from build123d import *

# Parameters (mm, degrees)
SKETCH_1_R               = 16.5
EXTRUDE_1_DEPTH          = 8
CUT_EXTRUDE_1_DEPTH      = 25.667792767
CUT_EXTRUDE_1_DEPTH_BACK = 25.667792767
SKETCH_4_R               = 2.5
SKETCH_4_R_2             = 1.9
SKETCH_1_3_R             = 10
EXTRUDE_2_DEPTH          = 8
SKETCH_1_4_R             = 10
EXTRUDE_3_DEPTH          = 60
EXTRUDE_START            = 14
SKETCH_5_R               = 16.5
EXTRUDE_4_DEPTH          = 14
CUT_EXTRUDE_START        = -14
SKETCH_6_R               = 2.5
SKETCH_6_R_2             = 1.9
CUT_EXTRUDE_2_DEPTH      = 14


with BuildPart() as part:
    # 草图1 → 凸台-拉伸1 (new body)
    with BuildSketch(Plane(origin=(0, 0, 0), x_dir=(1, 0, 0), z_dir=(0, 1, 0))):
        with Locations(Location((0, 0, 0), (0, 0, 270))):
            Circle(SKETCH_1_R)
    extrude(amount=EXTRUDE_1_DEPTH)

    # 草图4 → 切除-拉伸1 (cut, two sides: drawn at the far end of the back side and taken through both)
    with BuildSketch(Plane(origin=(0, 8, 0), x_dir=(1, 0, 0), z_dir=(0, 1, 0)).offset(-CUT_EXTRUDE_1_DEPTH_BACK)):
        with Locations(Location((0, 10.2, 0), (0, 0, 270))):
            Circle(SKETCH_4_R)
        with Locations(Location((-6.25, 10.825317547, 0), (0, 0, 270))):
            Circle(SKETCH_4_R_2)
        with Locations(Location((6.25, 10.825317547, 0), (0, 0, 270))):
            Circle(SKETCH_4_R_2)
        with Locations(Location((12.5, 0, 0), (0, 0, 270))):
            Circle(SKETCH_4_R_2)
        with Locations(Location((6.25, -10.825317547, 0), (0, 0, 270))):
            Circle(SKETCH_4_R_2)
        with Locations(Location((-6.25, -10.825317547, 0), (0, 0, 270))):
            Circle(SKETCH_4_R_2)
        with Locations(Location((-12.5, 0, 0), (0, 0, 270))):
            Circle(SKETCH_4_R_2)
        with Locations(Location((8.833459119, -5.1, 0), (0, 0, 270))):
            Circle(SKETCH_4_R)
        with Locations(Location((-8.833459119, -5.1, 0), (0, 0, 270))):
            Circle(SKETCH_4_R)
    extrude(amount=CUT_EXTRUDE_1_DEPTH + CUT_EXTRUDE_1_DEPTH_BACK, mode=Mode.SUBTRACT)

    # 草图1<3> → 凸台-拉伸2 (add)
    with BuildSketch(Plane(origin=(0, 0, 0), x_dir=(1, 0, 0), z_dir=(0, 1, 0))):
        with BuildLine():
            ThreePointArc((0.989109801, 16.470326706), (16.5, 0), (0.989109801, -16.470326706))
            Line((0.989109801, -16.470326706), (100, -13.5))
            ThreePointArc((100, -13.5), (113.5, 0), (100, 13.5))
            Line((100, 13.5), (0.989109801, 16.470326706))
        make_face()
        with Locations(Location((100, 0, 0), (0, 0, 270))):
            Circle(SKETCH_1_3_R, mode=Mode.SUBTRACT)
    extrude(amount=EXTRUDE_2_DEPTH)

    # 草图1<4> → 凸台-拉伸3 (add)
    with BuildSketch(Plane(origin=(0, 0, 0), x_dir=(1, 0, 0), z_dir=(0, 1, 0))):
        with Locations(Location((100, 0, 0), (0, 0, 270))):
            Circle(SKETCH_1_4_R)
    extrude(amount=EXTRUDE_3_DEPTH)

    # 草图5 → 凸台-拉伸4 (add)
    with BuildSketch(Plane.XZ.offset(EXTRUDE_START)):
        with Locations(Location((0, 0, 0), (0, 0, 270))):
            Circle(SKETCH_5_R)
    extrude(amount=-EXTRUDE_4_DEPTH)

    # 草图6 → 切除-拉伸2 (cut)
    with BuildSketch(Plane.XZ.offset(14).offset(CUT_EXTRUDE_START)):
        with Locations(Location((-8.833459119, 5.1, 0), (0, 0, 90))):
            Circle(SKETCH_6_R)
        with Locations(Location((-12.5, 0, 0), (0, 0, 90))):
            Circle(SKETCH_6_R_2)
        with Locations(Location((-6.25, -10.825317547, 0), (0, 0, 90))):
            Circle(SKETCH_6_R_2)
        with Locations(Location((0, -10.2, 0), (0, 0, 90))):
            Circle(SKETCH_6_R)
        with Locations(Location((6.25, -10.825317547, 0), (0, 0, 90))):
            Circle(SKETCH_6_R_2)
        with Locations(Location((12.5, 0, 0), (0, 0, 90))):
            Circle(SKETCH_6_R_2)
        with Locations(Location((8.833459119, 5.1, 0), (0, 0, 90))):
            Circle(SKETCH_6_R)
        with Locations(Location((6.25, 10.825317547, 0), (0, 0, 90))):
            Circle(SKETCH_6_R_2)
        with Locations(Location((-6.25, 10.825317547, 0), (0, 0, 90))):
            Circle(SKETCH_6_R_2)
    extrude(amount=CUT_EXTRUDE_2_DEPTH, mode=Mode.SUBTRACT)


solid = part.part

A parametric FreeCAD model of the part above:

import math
import FreeCAD as App
import Part
import Sketcher
Q = App.Units.Quantity

doc = App.newDocument("Part")
body = doc.addObject("PartDesign::Body", "Body")

sketch1 = body.newObject("Sketcher::SketchObject", "Sketch")
sketch1.AttachmentSupport = (doc.getObject("XZ_Plane"), [""])
sketch1.MapMode = "FlatFace"
sketch1.addGeometry(Part.Circle(App.Vector(0, 0, 0), App.Vector(0, 0, 1), 16.5), False)
sketch1.addConstraint([
    Sketcher.Constraint("Coincident", 0, 3, -1, 1),
    Sketcher.Constraint("Diameter", 0, Q("33 mm")),
])
pad1 = body.newObject("PartDesign::Pad", "Pad")
pad1.Profile = sketch1
pad1.Length = 8
pad1.Reversed = True

sketch2 = body.newObject("Sketcher::SketchObject", "Sketch001")
sketch2.AttachmentSupport = (doc.getObject("XZ_Plane"), [""])
sketch2.MapMode = "FlatFace"
sketch2.AttachmentOffset = App.Placement(App.Vector(0, 0, -8), App.Rotation())
sketch2.addGeometry([
    Part.Circle(App.Vector(0, -10.2, 0), App.Vector(0, 0, 1), 2.5),
    Part.Circle(App.Vector(-6.25, -10.825318, 0), App.Vector(0, 0, 1), 1.9),
    Part.Circle(App.Vector(6.25, -10.825318, 0), App.Vector(0, 0, 1), 1.9),
    Part.Circle(App.Vector(12.5, 0, 0), App.Vector(0, 0, 1), 1.9),
    Part.Circle(App.Vector(6.25, 10.825318, 0), App.Vector(0, 0, 1), 1.9),
    Part.Circle(App.Vector(-6.25, 10.825318, 0), App.Vector(0, 0, 1), 1.9),
    Part.Circle(App.Vector(-12.5, 0, 0), App.Vector(0, 0, 1), 1.9),
    Part.Circle(App.Vector(8.833459, 5.1, 0), App.Vector(0, 0, 1), 2.5),
    Part.Circle(App.Vector(-8.833459, 5.1, 0), App.Vector(0, 0, 1), 2.5),
], False)
sketch2.addConstraint([
    Sketcher.Constraint("Equal", 1, 2),
    Sketcher.Constraint("Equal", 2, 3),
    Sketcher.Constraint("Equal", 3, 4),
    Sketcher.Constraint("Equal", 4, 5),
    Sketcher.Constraint("Equal", 5, 6),
    Sketcher.Constraint("Equal", 0, 7),
    Sketcher.Constraint("Equal", 7, 8),
    Sketcher.Constraint("Symmetric", 1, 3, 4, 3, -1, 1),
    Sketcher.Constraint("Symmetric", 2, 3, 5, 3, -1, 1),
    Sketcher.Constraint("Symmetric", 3, 3, 6, 3, -1, 1),
    Sketcher.Constraint("Symmetric", 1, 3, 2, 3, -2),
    Sketcher.Constraint("Symmetric", 7, 3, 8, 3, -2),
    Sketcher.Constraint("PointOnObject", 0, 3, -2),
    Sketcher.Constraint("PointOnObject", 3, 3, -1),
    Sketcher.Constraint("Diameter", 0, Q("5 mm")),
    Sketcher.Constraint("Diameter", 1, Q("3.8 mm")),
    Sketcher.Constraint("DistanceY", 0, 3, -1, 1, Q("10.2 mm")),
    Sketcher.Constraint("DistanceX", -1, 1, 3, 3, Q("12.5 mm")),
    Sketcher.Constraint("DistanceY", -1, 1, 7, 3, Q("5.1 mm")),
    Sketcher.Constraint("DistanceX", 1, 3, 2, 3, Q("12.5 mm")),
    Sketcher.Constraint("DistanceX", -1, 1, 7, 3, Q("8.833459 mm")),
    Sketcher.Constraint("DistanceY", 1, 3, -1, 1, Q("10.825318 mm")),
])
pocket1 = body.newObject("PartDesign::Pocket", "Pocket")
pocket1.Profile = sketch2
pocket1.Type = "ThroughAll"
pocket1.Midplane = True

sketch3 = body.newObject("Sketcher::SketchObject", "Sketch002")
sketch3.AttachmentSupport = (doc.getObject("XZ_Plane"), [""])
sketch3.MapMode = "FlatFace"
sketch3.addGeometry([
    Part.ArcOfCircle(Part.Circle(App.Vector(0, 0, 0), App.Vector(0, 0, 1), 16.5), math.radians(-86.563284), math.radians(86.563284)),
    Part.LineSegment(App.Vector(0.98911, 16.470327, 0), App.Vector(100, 13.5, 0)),
    Part.ArcOfCircle(Part.Circle(App.Vector(100, 0, 0), App.Vector(0, 0, 1), 13.5), math.radians(-90), math.radians(90)),
    Part.LineSegment(App.Vector(100, -13.5, 0), App.Vector(0.98911, -16.470327, 0)),
    Part.Circle(App.Vector(100, 0, 0), App.Vector(0, 0, 1), 10),
], False)
sketch3.addConstraint([
    Sketcher.Constraint("Coincident", 0, 2, 1, 1),
    Sketcher.Constraint("Coincident", 1, 2, 2, 2),
    Sketcher.Constraint("Coincident", 2, 1, 3, 1),
    Sketcher.Constraint("Coincident", 3, 2, 0, 1),
    Sketcher.Constraint("Coincident", 0, 3, -1, 1),
    Sketcher.Constraint("Coincident", 4, 3, 2, 3),
    Sketcher.Constraint("Symmetric", 1, 2, 2, 1, -1),
    Sketcher.Constraint("Vertical", 4, 3, 1, 2),
    Sketcher.Constraint("Vertical", 0, 2, 3, 2),
    Sketcher.Constraint("Diameter", 4, Q("20 mm")),
    Sketcher.Constraint("Radius", 0, Q("16.5 mm")),
    Sketcher.Constraint("Radius", 2, Q("13.5 mm")),
    Sketcher.Constraint("DistanceX", -1, 1, 2, 3, Q("100 mm")),
    Sketcher.Constraint("DistanceX", -1, 1, 0, 2, Q("0.98911 mm")),
])
pad2 = body.newObject("PartDesign::Pad", "Pad001")
pad2.Profile = sketch3
pad2.Length = 8
pad2.Reversed = True

sketch4 = body.newObject("Sketcher::SketchObject", "Sketch003")
sketch4.AttachmentSupport = (doc.getObject("XZ_Plane"), [""])
sketch4.MapMode = "FlatFace"
sketch4.addGeometry(Part.Circle(App.Vector(100, 0, 0), App.Vector(0, 0, 1), 10), False)
sketch4.addConstraint([
    Sketcher.Constraint("PointOnObject", 0, 3, -1),
    Sketcher.Constraint("Diameter", 0, Q("20 mm")),
    Sketcher.Constraint("DistanceX", -1, 1, 0, 3, Q("100 mm")),
])
pad3 = body.newObject("PartDesign::Pad", "Pad002")
pad3.Profile = sketch4
pad3.Length = 60
pad3.Reversed = True

sketch5 = body.newObject("Sketcher::SketchObject", "Sketch004")
sketch5.AttachmentSupport = (doc.getObject("XZ_Plane"), [""])
sketch5.MapMode = "FlatFace"
sketch5.AttachmentOffset = App.Placement(App.Vector(0, 0, 14), App.Rotation())
sketch5.addGeometry(Part.Circle(App.Vector(0, 0, 0), App.Vector(0, 0, 1), 16.5), False)
sketch5.addConstraint([
    Sketcher.Constraint("Coincident", 0, 3, -1, 1),
    Sketcher.Constraint("Diameter", 0, Q("33 mm")),
])
pad4 = body.newObject("PartDesign::Pad", "Pad003")
pad4.Profile = sketch5
pad4.Length = 14
pad4.Reversed = True

sketch6 = body.newObject("Sketcher::SketchObject", "Sketch005")
sketch6.AttachmentSupport = (doc.getObject("XZ_Plane"), [""])
sketch6.MapMode = "FlatFace"
sketch6.addGeometry([
    Part.Circle(App.Vector(-8.833459, 5.1, 0), App.Vector(0, 0, 1), 2.5),
    Part.Circle(App.Vector(-12.5, 0, 0), App.Vector(0, 0, 1), 1.9),
    Part.Circle(App.Vector(-6.25, -10.825318, 0), App.Vector(0, 0, 1), 1.9),
    Part.Circle(App.Vector(0, -10.2, 0), App.Vector(0, 0, 1), 2.5),
    Part.Circle(App.Vector(6.25, -10.825318, 0), App.Vector(0, 0, 1), 1.9),
    Part.Circle(App.Vector(12.5, 0, 0), App.Vector(0, 0, 1), 1.9),
    Part.Circle(App.Vector(8.833459, 5.1, 0), App.Vector(0, 0, 1), 2.5),
    Part.Circle(App.Vector(6.25, 10.825318, 0), App.Vector(0, 0, 1), 1.9),
    Part.Circle(App.Vector(-6.25, 10.825318, 0), App.Vector(0, 0, 1), 1.9),
], False)
sketch6.addConstraint([
    Sketcher.Constraint("Equal", 1, 2),
    Sketcher.Constraint("Equal", 0, 3),
    Sketcher.Constraint("Equal", 2, 4),
    Sketcher.Constraint("Equal", 4, 5),
    Sketcher.Constraint("Equal", 3, 6),
    Sketcher.Constraint("Equal", 5, 7),
    Sketcher.Constraint("Equal", 7, 8),
    Sketcher.Constraint("Symmetric", 1, 3, 5, 3, -1, 1),
    Sketcher.Constraint("Symmetric", 2, 3, 7, 3, -1, 1),
    Sketcher.Constraint("Symmetric", 4, 3, 8, 3, -1, 1),
    Sketcher.Constraint("Symmetric", 2, 3, 4, 3, -2),
    Sketcher.Constraint("Symmetric", 0, 3, 6, 3, -2),
    Sketcher.Constraint("PointOnObject", 1, 3, -1),
    Sketcher.Constraint("PointOnObject", 3, 3, -2),
    Sketcher.Constraint("Diameter", 0, Q("5 mm")),
    Sketcher.Constraint("Diameter", 1, Q("3.8 mm")),
    Sketcher.Constraint("DistanceX", 1, 3, 5, 3, Q("25 mm")),
    Sketcher.Constraint("DistanceY", -1, 1, 0, 3, Q("5.1 mm")),
    Sketcher.Constraint("DistanceY", 3, 3, -1, 1, Q("10.2 mm")),
    Sketcher.Constraint("DistanceX", 2, 3, 4, 3, Q("12.5 mm")),
    Sketcher.Constraint("DistanceX", 0, 3, -1, 1, Q("8.833459 mm")),
    Sketcher.Constraint("DistanceY", 2, 3, -1, 1, Q("10.825318 mm")),
])
pocket2 = body.newObject("PartDesign::Pocket", "Pocket001")
pocket2.Profile = sketch6
pocket2.Length = 14
pocket2.Reversed = True

doc.recompute()
